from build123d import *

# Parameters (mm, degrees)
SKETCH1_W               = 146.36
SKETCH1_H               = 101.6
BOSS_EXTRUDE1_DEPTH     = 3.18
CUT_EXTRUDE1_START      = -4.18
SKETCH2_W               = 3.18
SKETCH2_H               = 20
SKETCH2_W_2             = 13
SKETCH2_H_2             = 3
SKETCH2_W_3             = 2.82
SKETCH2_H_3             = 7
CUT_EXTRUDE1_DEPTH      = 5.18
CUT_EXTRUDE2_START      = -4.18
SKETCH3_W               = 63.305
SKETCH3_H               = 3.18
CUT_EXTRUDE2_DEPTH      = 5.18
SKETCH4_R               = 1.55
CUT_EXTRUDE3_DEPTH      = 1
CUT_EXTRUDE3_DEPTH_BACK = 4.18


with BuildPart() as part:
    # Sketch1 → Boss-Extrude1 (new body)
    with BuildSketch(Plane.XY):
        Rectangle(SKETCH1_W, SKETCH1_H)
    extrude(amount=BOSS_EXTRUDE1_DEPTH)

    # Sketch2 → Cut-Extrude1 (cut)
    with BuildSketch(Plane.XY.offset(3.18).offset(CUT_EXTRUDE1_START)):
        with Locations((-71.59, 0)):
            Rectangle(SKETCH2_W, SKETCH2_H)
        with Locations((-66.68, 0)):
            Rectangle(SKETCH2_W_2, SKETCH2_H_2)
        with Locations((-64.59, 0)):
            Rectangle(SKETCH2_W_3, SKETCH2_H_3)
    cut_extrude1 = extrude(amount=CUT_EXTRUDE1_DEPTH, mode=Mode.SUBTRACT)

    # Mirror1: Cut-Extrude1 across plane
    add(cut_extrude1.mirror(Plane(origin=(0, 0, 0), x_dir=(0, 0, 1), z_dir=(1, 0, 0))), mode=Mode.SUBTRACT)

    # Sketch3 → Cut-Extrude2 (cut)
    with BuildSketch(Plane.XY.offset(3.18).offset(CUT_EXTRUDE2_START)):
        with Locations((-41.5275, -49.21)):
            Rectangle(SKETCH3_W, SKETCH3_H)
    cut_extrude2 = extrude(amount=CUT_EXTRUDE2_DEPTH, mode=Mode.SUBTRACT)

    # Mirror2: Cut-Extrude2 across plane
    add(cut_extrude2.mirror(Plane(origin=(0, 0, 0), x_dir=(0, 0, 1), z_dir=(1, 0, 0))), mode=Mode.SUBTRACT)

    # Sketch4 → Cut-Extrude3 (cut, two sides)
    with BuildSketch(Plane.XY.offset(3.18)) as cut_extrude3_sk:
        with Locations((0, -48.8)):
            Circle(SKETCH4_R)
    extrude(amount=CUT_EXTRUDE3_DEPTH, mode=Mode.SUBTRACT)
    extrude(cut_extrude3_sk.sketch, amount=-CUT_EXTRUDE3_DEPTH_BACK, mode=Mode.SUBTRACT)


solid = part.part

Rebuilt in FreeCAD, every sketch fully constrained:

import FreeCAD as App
import Part
import Sketcher
from FreeCAD import Vector

doc = App.newDocument("Part")
body = doc.addObject("PartDesign::Body", "Body")

# Sketch on XY plane
sketch1 = doc.addObject("Sketcher::SketchObject", "Sketch")
body.addObject(sketch1)
sketch1.AttachmentSupport = (doc.XY_Plane, [""])
sketch1.MapMode = "FlatFace"
sketch1.addGeometry(Part.LineSegment(Vector(-73.18, 50.8, 0), Vector(-73.18, -50.8, 0)), False)
sketch1.addGeometry(Part.LineSegment(Vector(-73.18, -50.8, 0), Vector(73.18, -50.8, 0)), False)
sketch1.addGeometry(Part.LineSegment(Vector(73.18, -50.8, 0), Vector(73.18, 50.8, 0)), False)
sketch1.addGeometry(Part.LineSegment(Vector(73.18, 50.8, 0), Vector(-73.18, 50.8, 0)), False)
sketch1.addConstraint(Sketcher.Constraint("Coincident", 0, 2, 1, 1))
sketch1.addConstraint(Sketcher.Constraint("Coincident", 1, 2, 2, 1))
sketch1.addConstraint(Sketcher.Constraint("Coincident", 2, 2, 3, 1))
sketch1.addConstraint(Sketcher.Constraint("Coincident", 3, 2, 0, 1))
sketch1.addConstraint(Sketcher.Constraint("Vertical", 0))
sketch1.addConstraint(Sketcher.Constraint("Horizontal", 1))
sketch1.addConstraint(Sketcher.Constraint("Vertical", 2))
sketch1.addConstraint(Sketcher.Constraint("Horizontal", 3))
sketch1.addConstraint(Sketcher.Constraint("Symmetric", 0, 2, 2, 2, -1, 1))
sketch1.addConstraint(Sketcher.Constraint("DistanceY", 0, 2, 0, 1, 101.6))
sketch1.addConstraint(Sketcher.Constraint("DistanceX", 1, 1, 1, 2, 146.36))
pad1 = doc.addObject("PartDesign::Pad", "Pad")
body.addObject(pad1)
pad1.Profile = sketch1
pad1.Length = 3.18

# Sketch on XY plane
sketch2 = doc.addObject("Sketcher::SketchObject", "Sketch001")
body.addObject(sketch2)
sketch2.AttachmentSupport = (doc.XY_Plane, [""])
sketch2.MapMode = "FlatFace"
sketch2.AttachmentOffset = App.Placement(Vector(0, 0, -1), App.Rotation())
sketch2.addGeometry(Part.LineSegment(Vector(-73.18, 10, 0), Vector(-73.18, -10, 0)), False)
sketch2.addGeometry(Part.LineSegment(Vector(-73.18, -10, 0), Vector(-70, -10, 0)), False)
sketch2.addGeometry(Part.LineSegment(Vector(-70, -10, 0), Vector(-70, -1.5, 0)), False)
sketch2.addGeometry(Part.LineSegment(Vector(-70, -1.5, 0), Vector(-66, -1.5, 0)), False)
sketch2.addGeometry(Part.LineSegment(Vector(-66, -1.5, 0), Vector(-66, -3.5, 0)), False)
sketch2.addGeometry(Part.LineSegment(Vector(-66, -3.5, 0), Vector(-63.18, -3.5, 0)), False)
sketch2.addGeometry(Part.LineSegment(Vector(-63.18, -3.5, 0), Vector(-63.18, -1.5, 0)), False)
sketch2.addGeometry(Part.LineSegment(Vector(-63.18, -1.5, 0), Vector(-60.18, -1.5, 0)), False)
sketch2.addGeometry(Part.LineSegment(Vector(-60.18, -1.5, 0), Vector(-60.18, 1.5, 0)), False)
sketch2.addGeometry(Part.LineSegment(Vector(-60.18, 1.5, 0), Vector(-63.18, 1.5, 0)), False)
sketch2.addGeometry(Part.LineSegment(Vector(-63.18, 1.5, 0), Vector(-63.18, 3.5, 0)), False)
sketch2.addGeometry(Part.LineSegment(Vector(-63.18, 3.5, 0), Vector(-66, 3.5, 0)), False)
sketch2.addGeometry(Part.LineSegment(Vector(-66, 3.5, 0), Vector(-66, 1.5, 0)), False)
sketch2.addGeometry(Part.LineSegment(Vector(-66, 1.5, 0), Vector(-70, 1.5, 0)), False)
sketch2.addGeometry(Part.LineSegment(Vector(-70, 1.5, 0), Vector(-70, 10, 0)), False)
sketch2.addGeometry(Part.LineSegment(Vector(-70, 10, 0), Vector(-73.18, 10, 0)), False)
sketch2.addConstraint(Sketcher.Constraint("Coincident", 0, 2, 1, 1))
sketch2.addConstraint(Sketcher.Constraint("Coincident", 1, 2, 2, 1))
sketch2.addConstraint(Sketcher.Constraint("Coincident", 2, 2, 3, 1))
sketch2.addConstraint(Sketcher.Constraint("Coincident", 3, 2, 4, 1))
sketch2.addConstraint(Sketcher.Constraint("Coincident", 4, 2, 5, 1))
sketch2.addConstraint(Sketcher.Constraint("Coincident", 5, 2, 6, 1))
sketch2.addConstraint(Sketcher.Constraint("Coincident", 6, 2, 7, 1))
sketch2.addConstraint(Sketcher.Constraint("Coincident", 7, 2, 8, 1))
sketch2.addConstraint(Sketcher.Constraint("Coincident", 8, 2, 9, 1))
sketch2.addConstraint(Sketcher.Constraint("Coincident", 9, 2, 10, 1))
sketch2.addConstraint(Sketcher.Constraint("Coincident", 10, 2, 11, 1))
sketch2.addConstraint(Sketcher.Constraint("Coincident", 11, 2, 12, 1))
sketch2.addConstraint(Sketcher.Constraint("Coincident", 12, 2, 13, 1))
sketch2.addConstraint(Sketcher.Constraint("Coincident", 13, 2, 14, 1))
sketch2.addConstraint(Sketcher.Constraint("Coincident", 14, 2, 15, 1))
sketch2.addConstraint(Sketcher.Constraint("Coincident", 15, 2, 0, 1))
sketch2.addConstraint(Sketcher.Constraint("Vertical", 0))
sketch2.addConstraint(Sketcher.Constraint("Horizontal", 1))
sketch2.addConstraint(Sketcher.Constraint("Vertical", 2))
sketch2.addConstraint(Sketcher.Constraint("Horizontal", 3))
sketch2.addConstraint(Sketcher.Constraint("Vertical", 4))
sketch2.addConstraint(Sketcher.Constraint("Horizontal", 5))
sketch2.addConstraint(Sketcher.Constraint("Vertical", 6))
sketch2.addConstraint(Sketcher.Constraint("Horizontal", 7))
sketch2.addConstraint(Sketcher.Constraint("Vertical", 8))
sketch2.addConstraint(Sketcher.Constraint("Horizontal", 9))
sketch2.addConstraint(Sketcher.Constraint("Vertical", 10))
sketch2.addConstraint(Sketcher.Constraint("Horizontal", 11))
sketch2.addConstraint(Sketcher.Constraint("Vertical", 12))
sketch2.addConstraint(Sketcher.Constraint("Horizontal", 13))
sketch2.addConstraint(Sketcher.Constraint("Vertical", 14))
sketch2.addConstraint(Sketcher.Constraint("Horizontal", 15))
sketch2.addConstraint(Sketcher.Constraint("Symmetric", 6, 2, 9, 2, -1))
sketch2.addConstraint(Sketcher.Constraint("Symmetric", 4, 2, 11, 2, -1))
sketch2.addConstraint(Sketcher.Constraint("Symmetric", 2, 2, 13, 2, -1))
sketch2.addConstraint(Sketcher.Constraint("Horizontal", 3, 2, 6, 2))
sketch2.addConstraint(Sketcher.Constraint("Equal", 9, 8))
sketch2.addConstraint(Sketcher.Constraint("Equal", 2, 14))
sketch2.addConstraint(Sketcher.Constraint("DistanceX", 3, 1, 3, 2, 4.0))
sketch2.addConstraint(Sketcher.Constraint("DistanceX", 7, 1, 7, 2, 3.0))
sketch2.addConstraint(Sketcher.Constraint("DistanceY", 0, 2, 0, 1, 20.0))
sketch2.addConstraint(Sketcher.Constraint("DistanceY", 4, 2, 4, 1, 2.0))
sketch2.addConstraint(Sketcher.Constraint("DistanceX", 1, 2, -1, 1, 70.0))
sketch2.addConstraint(Sketcher.Constraint("DistanceX", 0, 2, 5, 2, 10.0))
sketch2.addConstraint(Sketcher.Constraint("DistanceX", 1, 1, 1, 2, 3.18))
pocket1 = doc.addObject("PartDesign::Pocket", "Pocket")
body.addObject(pocket1)
pocket1.Profile = sketch2
pocket1.Length = 5.18
pocket1.Reversed = True
doc.recompute()

mirrored = doc.addObject("PartDesign::Mirrored", "Mirrored")
body.addObject(mirrored)
mirrored.Originals = [pocket1]
mirrored.MirrorPlane = (doc.YZ_Plane, [""])
body.Tip = mirrored

# Sketch on XY plane
sketch3 = doc.addObject("Sketcher::SketchObject", "Sketch002")
body.addObject(sketch3)
sketch3.AttachmentSupport = (doc.XY_Plane, [""])
sketch3.MapMode = "FlatFace"
sketch3.AttachmentOffset = App.Placement(Vector(0, 0, -1), App.Rotation())
sketch3.addGeometry(Part.LineSegment(Vector(-73.18, -47.62, 0), Vector(-73.18, -50.8, 0)), False)
sketch3.addGeometry(Part.LineSegment(Vector(-73.18, -50.8, 0), Vector(-9.875, -50.8, 0)), False)
sketch3.addGeometry(Part.LineSegment(Vector(-9.875, -50.8, 0), Vector(-9.875, -47.62, 0)), False)
sketch3.addGeometry(Part.LineSegment(Vector(-9.875, -47.62, 0), Vector(-73.18, -47.62, 0)), False)
sketch3.addConstraint(Sketcher.Constraint("Coincident", 0, 2, 1, 1))
sketch3.addConstraint(Sketcher.Constraint("Coincident", 1, 2, 2, 1))
sketch3.addConstraint(Sketcher.Constraint("Coincident", 2, 2, 3, 1))
sketch3.addConstraint(Sketcher.Constraint("Coincident", 3, 2, 0, 1))
sketch3.addConstraint(Sketcher.Constraint("Vertical", 0))
sketch3.addConstraint(Sketcher.Constraint("Horizontal", 1))
sketch3.addConstraint(Sketcher.Constraint("Vertical", 2))
sketch3.addConstraint(Sketcher.Constraint("Horizontal", 3))
sketch3.addConstraint(Sketcher.Constraint("DistanceY", 0, 2, 0, 1, 3.18))
sketch3.addConstraint(Sketcher.Constraint("DistanceY", 0, 2, -1, 1, 50.8))
sketch3.addConstraint(Sketcher.Constraint("DistanceX", 1, 1, 1, 2, 63.305))
sketch3.addConstraint(Sketcher.Constraint("DistanceX", 0, 2, -1, 1, 73.18))
pocket2 = doc.addObject("PartDesign::Pocket", "Pocket001")
body.addObject(pocket2)
pocket2.Profile = sketch3
pocket2.Length = 5.18
pocket2.Reversed = True
doc.recompute()

mirrored2 = doc.addObject("PartDesign::Mirrored", "Mirrored001")
body.addObject(mirrored2)
mirrored2.Originals = [pocket2]
mirrored2.MirrorPlane = (doc.YZ_Plane, [""])
body.Tip = mirrored2

# Sketch on XY plane
sketch4 = doc.addObject("Sketcher::SketchObject", "Sketch003")
body.addObject(sketch4)
sketch4.AttachmentSupport = (doc.XY_Plane, [""])
sketch4.MapMode = "FlatFace"
sketch4.AttachmentOffset = App.Placement(Vector(0, 0, 3.18), App.Rotation())
sketch4.addGeometry(Part.Circle(Vector(0, -48.8, 0), Vector(0, 0, 1), 1.55), False)
sketch4.addConstraint(Sketcher.Constraint("PointOnObject", 0, 3, -2))
sketch4.addConstraint(Sketcher.Constraint("Diameter", 0, 3.1))
sketch4.addConstraint(Sketcher.Constraint("DistanceY", 0, 3, -1, 1, 48.8))
pocket3 = doc.addObject("PartDesign::Pocket", "Pocket002")
body.addObject(pocket3)
pocket3.Profile = sketch4
pocket3.Type = "ThroughAll"
pocket3.Midplane = True

doc.recompute()
